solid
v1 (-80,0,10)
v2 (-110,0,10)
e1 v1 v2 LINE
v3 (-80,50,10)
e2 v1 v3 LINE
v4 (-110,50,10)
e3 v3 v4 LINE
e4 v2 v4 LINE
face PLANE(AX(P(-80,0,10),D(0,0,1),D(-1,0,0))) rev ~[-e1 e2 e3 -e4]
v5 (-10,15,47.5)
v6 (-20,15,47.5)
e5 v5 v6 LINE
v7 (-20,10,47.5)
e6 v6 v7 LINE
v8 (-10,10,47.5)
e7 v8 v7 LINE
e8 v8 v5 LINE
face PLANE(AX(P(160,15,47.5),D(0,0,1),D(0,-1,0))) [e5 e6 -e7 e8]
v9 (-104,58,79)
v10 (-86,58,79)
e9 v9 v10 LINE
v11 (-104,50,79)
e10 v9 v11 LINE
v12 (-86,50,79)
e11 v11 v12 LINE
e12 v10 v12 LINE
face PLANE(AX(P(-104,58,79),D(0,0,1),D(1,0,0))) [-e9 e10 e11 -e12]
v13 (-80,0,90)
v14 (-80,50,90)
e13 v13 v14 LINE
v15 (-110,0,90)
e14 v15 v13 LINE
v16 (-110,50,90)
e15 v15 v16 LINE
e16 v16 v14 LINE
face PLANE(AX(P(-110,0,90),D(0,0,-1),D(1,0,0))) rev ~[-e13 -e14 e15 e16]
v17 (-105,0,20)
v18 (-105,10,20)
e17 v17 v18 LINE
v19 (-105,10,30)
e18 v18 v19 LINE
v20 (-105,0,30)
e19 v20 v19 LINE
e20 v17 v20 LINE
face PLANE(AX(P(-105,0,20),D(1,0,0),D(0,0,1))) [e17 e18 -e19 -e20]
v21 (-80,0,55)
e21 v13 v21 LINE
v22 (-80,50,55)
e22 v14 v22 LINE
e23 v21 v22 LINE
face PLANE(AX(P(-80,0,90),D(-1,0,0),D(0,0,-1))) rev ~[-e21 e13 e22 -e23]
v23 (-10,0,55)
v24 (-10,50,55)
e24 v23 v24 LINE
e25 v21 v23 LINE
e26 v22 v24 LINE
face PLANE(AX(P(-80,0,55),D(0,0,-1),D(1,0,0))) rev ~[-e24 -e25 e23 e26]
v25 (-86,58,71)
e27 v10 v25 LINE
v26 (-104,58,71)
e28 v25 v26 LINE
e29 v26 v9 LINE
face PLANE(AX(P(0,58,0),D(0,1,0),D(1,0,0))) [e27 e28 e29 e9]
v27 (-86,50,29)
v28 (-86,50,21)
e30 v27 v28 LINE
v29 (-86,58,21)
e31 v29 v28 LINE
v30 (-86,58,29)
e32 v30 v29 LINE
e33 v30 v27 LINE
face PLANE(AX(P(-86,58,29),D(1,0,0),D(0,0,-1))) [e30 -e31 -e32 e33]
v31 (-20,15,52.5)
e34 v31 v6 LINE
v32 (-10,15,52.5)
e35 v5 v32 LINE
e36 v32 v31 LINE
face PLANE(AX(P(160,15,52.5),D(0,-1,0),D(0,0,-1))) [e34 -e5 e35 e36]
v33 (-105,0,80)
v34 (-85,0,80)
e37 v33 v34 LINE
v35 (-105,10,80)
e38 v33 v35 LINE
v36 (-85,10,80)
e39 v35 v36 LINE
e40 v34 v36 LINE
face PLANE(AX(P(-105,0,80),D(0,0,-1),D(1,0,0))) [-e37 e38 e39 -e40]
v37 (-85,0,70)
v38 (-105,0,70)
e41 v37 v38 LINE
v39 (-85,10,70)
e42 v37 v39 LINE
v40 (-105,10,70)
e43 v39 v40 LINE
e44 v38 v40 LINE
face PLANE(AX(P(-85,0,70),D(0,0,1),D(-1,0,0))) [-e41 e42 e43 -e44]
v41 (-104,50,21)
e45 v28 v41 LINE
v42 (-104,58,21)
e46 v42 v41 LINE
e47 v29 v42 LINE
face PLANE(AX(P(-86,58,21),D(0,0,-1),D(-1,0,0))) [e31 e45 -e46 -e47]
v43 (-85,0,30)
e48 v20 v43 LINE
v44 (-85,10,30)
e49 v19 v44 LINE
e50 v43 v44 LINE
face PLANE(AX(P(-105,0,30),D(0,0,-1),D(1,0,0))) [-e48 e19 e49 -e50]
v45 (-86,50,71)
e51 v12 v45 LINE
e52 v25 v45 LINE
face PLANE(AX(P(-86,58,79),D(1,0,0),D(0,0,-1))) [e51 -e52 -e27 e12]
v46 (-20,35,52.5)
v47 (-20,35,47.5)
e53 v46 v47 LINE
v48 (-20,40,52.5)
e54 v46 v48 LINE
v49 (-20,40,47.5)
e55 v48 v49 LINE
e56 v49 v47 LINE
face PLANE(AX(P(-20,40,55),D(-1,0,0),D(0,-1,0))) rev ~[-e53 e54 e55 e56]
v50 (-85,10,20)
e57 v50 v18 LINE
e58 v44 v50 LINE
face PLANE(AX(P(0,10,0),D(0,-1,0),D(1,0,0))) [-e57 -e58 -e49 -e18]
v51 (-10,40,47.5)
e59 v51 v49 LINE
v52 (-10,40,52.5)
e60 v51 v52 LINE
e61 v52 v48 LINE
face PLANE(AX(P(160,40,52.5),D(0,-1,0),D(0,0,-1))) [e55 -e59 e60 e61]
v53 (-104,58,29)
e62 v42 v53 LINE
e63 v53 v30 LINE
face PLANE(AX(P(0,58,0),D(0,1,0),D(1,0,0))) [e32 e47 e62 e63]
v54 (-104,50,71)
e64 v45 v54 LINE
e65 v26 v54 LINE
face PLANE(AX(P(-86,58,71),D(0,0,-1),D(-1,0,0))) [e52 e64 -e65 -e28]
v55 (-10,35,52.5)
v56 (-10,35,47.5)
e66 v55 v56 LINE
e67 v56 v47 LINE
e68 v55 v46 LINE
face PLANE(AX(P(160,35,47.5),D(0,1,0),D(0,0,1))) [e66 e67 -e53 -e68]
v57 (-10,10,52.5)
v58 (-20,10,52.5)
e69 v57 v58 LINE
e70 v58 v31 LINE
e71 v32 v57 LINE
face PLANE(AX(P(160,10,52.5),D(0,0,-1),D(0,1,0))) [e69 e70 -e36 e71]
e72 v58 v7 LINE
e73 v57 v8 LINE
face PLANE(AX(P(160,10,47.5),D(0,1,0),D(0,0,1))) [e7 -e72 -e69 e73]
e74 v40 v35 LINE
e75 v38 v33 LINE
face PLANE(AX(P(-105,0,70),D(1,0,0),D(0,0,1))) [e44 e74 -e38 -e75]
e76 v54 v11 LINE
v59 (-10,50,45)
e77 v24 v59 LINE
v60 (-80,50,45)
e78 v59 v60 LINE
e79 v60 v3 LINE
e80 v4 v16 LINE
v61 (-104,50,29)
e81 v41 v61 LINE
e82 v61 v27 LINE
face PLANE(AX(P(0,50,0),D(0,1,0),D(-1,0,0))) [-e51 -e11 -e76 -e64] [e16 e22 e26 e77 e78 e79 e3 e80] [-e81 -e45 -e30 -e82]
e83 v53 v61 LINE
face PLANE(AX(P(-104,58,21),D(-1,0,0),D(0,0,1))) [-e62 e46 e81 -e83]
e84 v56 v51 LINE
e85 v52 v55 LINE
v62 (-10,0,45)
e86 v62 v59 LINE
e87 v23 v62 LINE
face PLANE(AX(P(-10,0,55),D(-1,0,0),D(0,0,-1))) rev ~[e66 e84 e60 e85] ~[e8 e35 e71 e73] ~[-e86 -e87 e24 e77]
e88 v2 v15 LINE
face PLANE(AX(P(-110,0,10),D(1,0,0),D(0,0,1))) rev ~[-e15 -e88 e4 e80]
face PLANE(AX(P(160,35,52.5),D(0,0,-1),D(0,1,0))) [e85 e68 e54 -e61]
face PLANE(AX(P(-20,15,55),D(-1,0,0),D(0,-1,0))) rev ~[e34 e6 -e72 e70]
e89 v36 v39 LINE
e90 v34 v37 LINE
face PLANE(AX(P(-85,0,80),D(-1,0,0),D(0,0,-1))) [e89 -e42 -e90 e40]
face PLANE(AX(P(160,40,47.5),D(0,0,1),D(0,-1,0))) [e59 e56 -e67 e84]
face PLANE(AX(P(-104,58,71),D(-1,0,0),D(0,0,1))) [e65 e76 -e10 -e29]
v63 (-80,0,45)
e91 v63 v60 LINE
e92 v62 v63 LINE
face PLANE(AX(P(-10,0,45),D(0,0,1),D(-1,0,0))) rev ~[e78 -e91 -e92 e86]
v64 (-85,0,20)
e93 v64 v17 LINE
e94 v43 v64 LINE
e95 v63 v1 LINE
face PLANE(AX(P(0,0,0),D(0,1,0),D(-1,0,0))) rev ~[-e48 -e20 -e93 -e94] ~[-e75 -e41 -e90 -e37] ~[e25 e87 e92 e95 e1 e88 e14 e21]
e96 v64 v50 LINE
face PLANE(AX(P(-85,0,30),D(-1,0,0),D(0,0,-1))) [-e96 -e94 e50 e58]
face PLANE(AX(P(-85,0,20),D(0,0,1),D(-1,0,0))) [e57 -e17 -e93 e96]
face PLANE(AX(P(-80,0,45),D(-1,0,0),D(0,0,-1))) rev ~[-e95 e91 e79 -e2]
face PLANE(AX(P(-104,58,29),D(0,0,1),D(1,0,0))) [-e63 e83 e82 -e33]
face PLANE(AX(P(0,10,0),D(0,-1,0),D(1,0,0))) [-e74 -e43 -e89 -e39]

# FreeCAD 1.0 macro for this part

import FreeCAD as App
import Part
import Sketcher

V = App.Vector
Q = App.Units.Quantity


def add_polygon(sketch, points):
    """Adds a closed chain of lines whose ends are joined by coincident constraints."""
    first, n = sketch.GeometryCount, len(points)
    for a, b in zip(points, points[1:] + points[:1]):
        sketch.addGeometry(Part.LineSegment(App.Vector(*a, 0), App.Vector(*b, 0)), False)
    for i in range(n):
        sketch.addConstraint(Sketcher.Constraint("Coincident", first + i, 2, first + (i + 1) % n, 1))

doc = App.newDocument("Part")
body = doc.addObject("PartDesign::Body", "Body")
body.AllowCompound = True

# Sketch on XZ plane
sketch1 = body.newObject("Sketcher::SketchObject", "Sketch")
sketch1.AttachmentSupport = (doc.getObject("XZ_Plane"), [""])
sketch1.MapMode = "FlatFace"
add_polygon(sketch1, [(160, -55), (10, -55), (10, -45), (160, -45)])  # lines 0-3
add_polygon(sketch1, [(-10, -45), (-10, -55), (-80, -55), (-80, -90), (-110, -90), (-110, -10), (-80, -10), (-80, -45)])  # lines 4-11
add_polygon(sketch1, [(10, 45), (10, 55), (160, 55), (160, 45)])  # lines 12-15
add_polygon(sketch1, [(-80, 55), (-10, 55), (-10, 45), (-80, 45), (-80, 10), (-110, 10), (-110, 90), (-80, 90)])  # lines 16-23
sketch1.addConstraint(Sketcher.Constraint("Horizontal", 0))
sketch1.addConstraint(Sketcher.Constraint("Vertical", 1))
sketch1.addConstraint(Sketcher.Constraint("Horizontal", 2))
sketch1.addConstraint(Sketcher.Constraint("Vertical", 3))
sketch1.addConstraint(Sketcher.Constraint("Vertical", 4))
sketch1.addConstraint(Sketcher.Constraint("Horizontal", 5))
sketch1.addConstraint(Sketcher.Constraint("Vertical", 6))
sketch1.addConstraint(Sketcher.Constraint("Horizontal", 7))
sketch1.addConstraint(Sketcher.Constraint("Vertical", 8))
sketch1.addConstraint(Sketcher.Constraint("Horizontal", 9))
sketch1.addConstraint(Sketcher.Constraint("Vertical", 10))
sketch1.addConstraint(Sketcher.Constraint("Horizontal", 11))
sketch1.addConstraint(Sketcher.Constraint("Vertical", 12))
sketch1.addConstraint(Sketcher.Constraint("Horizontal", 13))
sketch1.addConstraint(Sketcher.Constraint("Vertical", 14))
sketch1.addConstraint(Sketcher.Constraint("Horizontal", 15))
sketch1.addConstraint(Sketcher.Constraint("Horizontal", 16))
sketch1.addConstraint(Sketcher.Constraint("Vertical", 17))
sketch1.addConstraint(Sketcher.Constraint("Horizontal", 18))
sketch1.addConstraint(Sketcher.Constraint("Vertical", 19))
sketch1.addConstraint(Sketcher.Constraint("Horizontal", 20))
sketch1.addConstraint(Sketcher.Constraint("Vertical", 21))
sketch1.addConstraint(Sketcher.Constraint("Horizontal", 22))
sketch1.addConstraint(Sketcher.Constraint("Vertical", 23))
sketch1.addConstraint(Sketcher.Constraint("Symmetric", 4, 2, 12, 2, -1, 1))
sketch1.addConstraint(Sketcher.Constraint("Symmetric", 0, 2, 16, 2, -1, 1))
sketch1.addConstraint(Sketcher.Constraint("Symmetric", 0, 2, 4, 2, -2))
sketch1.addConstraint(Sketcher.Constraint("Symmetric", 2, 2, 14, 2, -1))
sketch1.addConstraint(Sketcher.Constraint("Symmetric", 10, 2, 18, 2, -1))
sketch1.addConstraint(Sketcher.Constraint("Symmetric", 8, 2, 20, 2, -1))
sketch1.addConstraint(Sketcher.Constraint("Symmetric", 6, 2, 22, 2, -1))
sketch1.addConstraint(Sketcher.Constraint("Horizontal", 2, 2, 10, 2))
sketch1.addConstraint(Sketcher.Constraint("Vertical", 6, 2, 9, 2))
sketch1.addConstraint(Sketcher.Constraint("Equal", 6, 10))
sketch1.addConstraint(Sketcher.Constraint("DistanceX", 0, 2, 0, 1, Q("150 mm")))
sketch1.addConstraint(Sketcher.Constraint("DistanceX", 7, 2, 7, 1, Q("30 mm")))
sketch1.addConstraint(Sketcher.Constraint("DistanceY", 1, 1, 1, 2, Q("10 mm")))
sketch1.addConstraint(Sketcher.Constraint("DistanceY", 6, 2, 6, 1, Q("35 mm")))
sketch1.addConstraint(Sketcher.Constraint("DistanceX", -1, 1, 0, 2, Q("10 mm")))
sketch1.addConstraint(Sketcher.Constraint("DistanceY", 1, 2, -1, 1, Q("45 mm")))
sketch1.addConstraint(Sketcher.Constraint("DistanceX", 5, 2, -1, 1, Q("80 mm")))
pad1 = body.newObject("PartDesign::Pad", "Pad")
pad1.Profile = sketch1
pad1.Length = 50
pad1.Reversed = True

# Sketch on YZ plane
sketch2 = body.newObject("Sketcher::SketchObject", "Sketch001")
sketch2.AttachmentSupport = (doc.getObject("YZ_Plane"), [""])
sketch2.MapMode = "FlatFace"
sketch2.AttachmentOffset = App.Placement(V(0, 0, 160), App.Rotation())
add_polygon(sketch2, [(40, 47.5), (40, 52.5), (35, 52.5), (35, 47.5)])  # lines 0-3
add_polygon(sketch2, [(15, 47.5), (15, 52.5), (10, 52.5), (10, 47.5)])  # lines 4-7
add_polygon(sketch2, [(40, -52.5), (40, -47.5), (35, -47.5), (35, -52.5)])  # lines 8-11
add_polygon(sketch2, [(15, -52.5), (15, -47.5), (10, -47.5), (10, -52.5)])  # lines 12-15
sketch2.addConstraint(Sketcher.Constraint("Vertical", 0))
sketch2.addConstraint(Sketcher.Constraint("Horizontal", 1))
sketch2.addConstraint(Sketcher.Constraint("Vertical", 2))
sketch2.addConstraint(Sketcher.Constraint("Horizontal", 3))
sketch2.addConstraint(Sketcher.Constraint("Vertical", 4))
sketch2.addConstraint(Sketcher.Constraint("Horizontal", 5))
sketch2.addConstraint(Sketcher.Constraint("Vertical", 6))
sketch2.addConstraint(Sketcher.Constraint("Horizontal", 7))
sketch2.addConstraint(Sketcher.Constraint("Vertical", 8))
sketch2.addConstraint(Sketcher.Constraint("Horizontal", 9))
sketch2.addConstraint(Sketcher.Constraint("Vertical", 10))
sketch2.addConstraint(Sketcher.Constraint("Horizontal", 11))
sketch2.addConstraint(Sketcher.Constraint("Vertical", 12))
sketch2.addConstraint(Sketcher.Constraint("Horizontal", 13))
sketch2.addConstraint(Sketcher.Constraint("Vertical", 14))
sketch2.addConstraint(Sketcher.Constraint("Horizontal", 15))
sketch2.addConstraint(Sketcher.Constraint("Symmetric", 3, 2, 8, 2, -1))
sketch2.addConstraint(Sketcher.Constraint("Symmetric", 1, 2, 10, 2, -1))
sketch2.addConstraint(Sketcher.Constraint("Symmetric", 7, 2, 12, 2, -1))
sketch2.addConstraint(Sketcher.Constraint("Symmetric", 5, 2, 14, 2, -1))
sketch2.addConstraint(Sketcher.Constraint("Horizontal", 1, 2, 4, 2))
sketch2.addConstraint(Sketcher.Constraint("Horizontal", 3, 2, 6, 2))
sketch2.addConstraint(Sketcher.Constraint("Equal", 3, 5))
sketch2.addConstraint(Sketcher.Constraint("Equal", 15, 0))
sketch2.addConstraint(Sketcher.Constraint("DistanceX", 1, 2, 1, 1, Q("5 mm")))
sketch2.addConstraint(Sketcher.Constraint("DistanceX", -1, 1, 5, 2, Q("10 mm")))
sketch2.addConstraint(Sketcher.Constraint("DistanceX", 4, 2, 0, 2, Q("25 mm")))
sketch2.addConstraint(Sketcher.Constraint("DistanceY", 8, 2, 0, 2, Q("100 mm")))
pocket1 = body.newObject("PartDesign::Pocket", "Pocket")
pocket1.Profile = sketch2
pocket1.Length = 200

# Sketch on XZ plane
sketch3 = body.newObject("Sketcher::SketchObject", "Sketch002")
sketch3.AttachmentSupport = (doc.getObject("XZ_Plane"), [""])
sketch3.MapMode = "FlatFace"
sketch3.AttachmentOffset = App.Placement(V(0, 0, -50), App.Rotation())
add_polygon(sketch3, [(-85, 20), (-105, 20), (-105, 30), (-85, 30)])  # lines 0-3
add_polygon(sketch3, [(-85, 70), (-105, 70), (-105, 80), (-85, 80)])  # lines 4-7
add_polygon(sketch3, [(-85, -80), (-105, -80), (-105, -70), (-85, -70)])  # lines 8-11
add_polygon(sketch3, [(-85, -30), (-105, -30), (-105, -20), (-85, -20)])  # lines 12-15
sketch3.addConstraint(Sketcher.Constraint("Horizontal", 0))
sketch3.addConstraint(Sketcher.Constraint("Vertical", 1))
sketch3.addConstraint(Sketcher.Constraint("Horizontal", 2))
sketch3.addConstraint(Sketcher.Constraint("Vertical", 3))
sketch3.addConstraint(Sketcher.Constraint("Horizontal", 4))
sketch3.addConstraint(Sketcher.Constraint("Vertical", 5))
sketch3.addConstraint(Sketcher.Constraint("Horizontal", 6))
sketch3.addConstraint(Sketcher.Constraint("Vertical", 7))
sketch3.addConstraint(Sketcher.Constraint("Horizontal", 8))
sketch3.addConstraint(Sketcher.Constraint("Vertical", 9))
sketch3.addConstraint(Sketcher.Constraint("Horizontal", 10))
sketch3.addConstraint(Sketcher.Constraint("Vertical", 11))
sketch3.addConstraint(Sketcher.Constraint("Horizontal", 12))
sketch3.addConstraint(Sketcher.Constraint("Vertical", 13))
sketch3.addConstraint(Sketcher.Constraint("Horizontal", 14))
sketch3.addConstraint(Sketcher.Constraint("Vertical", 15))
sketch3.addConstraint(Sketcher.Constraint("Symmetric", 5, 2, 8, 2, -1))
sketch3.addConstraint(Sketcher.Constraint("Symmetric", 7, 2, 10, 2, -1))
sketch3.addConstraint(Sketcher.Constraint("Symmetric", 1, 2, 12, 2, -1))
sketch3.addConstraint(Sketcher.Constraint("Symmetric", 3, 2, 14, 2, -1))
sketch3.addConstraint(Sketcher.Constraint("Vertical", 1, 2, 4, 2))
sketch3.addConstraint(Sketcher.Constraint("Vertical", 3, 2, 6, 2))
sketch3.addConstraint(Sketcher.Constraint("Equal", 3, 5))
sketch3.addConstraint(Sketcher.Constraint("DistanceX", 0, 2, 0, 1, Q("20 mm")))
sketch3.addConstraint(Sketcher.Constraint("DistanceY", 1, 1, 1, 2, Q("10 mm")))
sketch3.addConstraint(Sketcher.Constraint("DistanceY", -1, 1, 0, 2, Q("20 mm")))
sketch3.addConstraint(Sketcher.Constraint("DistanceX", 2, 2, -1, 1, Q("85 mm")))
sketch3.addConstraint(Sketcher.Constraint("DistanceY", 0, 2, 4, 2, Q("50 mm")))
pad2 = body.newObject("PartDesign::Pad", "Pad001")
pad2.Profile = sketch3
pad2.Length = 8
pad2.Reversed = True

# Sketch on XZ plane
sketch4 = body.newObject("Sketcher::SketchObject", "Sketch003")
sketch4.AttachmentSupport = (doc.getObject("XZ_Plane"), [""])
sketch4.MapMode = "FlatFace"
add_polygon(sketch4, [(-85, -70), (-105, -70), (-105, -80), (-85, -80)])  # lines 0-3
add_polygon(sketch4, [(-85, -20), (-105, -20), (-105, -30), (-85, -30)])  # lines 4-7
add_polygon(sketch4, [(-85, 30), (-105, 30), (-105, 20), (-85, 20)])  # lines 8-11
add_polygon(sketch4, [(-85, 80), (-105, 80), (-105, 70), (-85, 70)])  # lines 12-15
sketch4.addConstraint(Sketcher.Constraint("Horizontal", 0))
sketch4.addConstraint(Sketcher.Constraint("Vertical", 1))
sketch4.addConstraint(Sketcher.Constraint("Horizontal", 2))
sketch4.addConstraint(Sketcher.Constraint("Vertical", 3))
sketch4.addConstraint(Sketcher.Constraint("Horizontal", 4))
sketch4.addConstraint(Sketcher.Constraint("Vertical", 5))
sketch4.addConstraint(Sketcher.Constraint("Horizontal", 6))
sketch4.addConstraint(Sketcher.Constraint("Vertical", 7))
sketch4.addConstraint(Sketcher.Constraint("Horizontal", 8))
sketch4.addConstraint(Sketcher.Constraint("Vertical", 9))
sketch4.addConstraint(Sketcher.Constraint("Horizontal", 10))
sketch4.addConstraint(Sketcher.Constraint("Vertical", 11))
sketch4.addConstraint(Sketcher.Constraint("Horizontal", 12))
sketch4.addConstraint(Sketcher.Constraint("Vertical", 13))
sketch4.addConstraint(Sketcher.Constraint("Horizontal", 14))
sketch4.addConstraint(Sketcher.Constraint("Vertical", 15))
sketch4.addConstraint(Sketcher.Constraint("Symmetric", 5, 2, 8, 2, -1))
sketch4.addConstraint(Sketcher.Constraint("Symmetric", 7, 2, 10, 2, -1))
sketch4.addConstraint(Sketcher.Constraint("Symmetric", 1, 2, 12, 2, -1))
sketch4.addConstraint(Sketcher.Constraint("Symmetric", 3, 2, 14, 2, -1))
sketch4.addConstraint(Sketcher.Constraint("Vertical", 1, 2, 4, 2))
sketch4.addConstraint(Sketcher.Constraint("Vertical", 3, 2, 6, 2))
sketch4.addConstraint(Sketcher.Constraint("Equal", 3, 5))
sketch4.addConstraint(Sketcher.Constraint("DistanceX", 0, 2, 0, 1, Q("20 mm")))
sketch4.addConstraint(Sketcher.Constraint("DistanceY", 1, 2, 1, 1, Q("10 mm")))
sketch4.addConstraint(Sketcher.Constraint("DistanceX", 0, 2, -1, 1, Q("105 mm")))
sketch4.addConstraint(Sketcher.Constraint("DistanceY", 0, 2, -1, 1, Q("70 mm")))
sketch4.addConstraint(Sketcher.Constraint("DistanceY", 4, 2, -1, 1, Q("20 mm")))
pocket2 = body.newObject("PartDesign::Pocket", "Pocket001")
pocket2.Profile = sketch4
pocket2.Length = 10

# Sketch on XY plane
sketch5 = body.newObject("Sketcher::SketchObject", "Sketch004")
sketch5.AttachmentSupport = (doc.getObject("XY_Plane"), [""])
sketch5.MapMode = "FlatFace"
sketch5.AttachmentOffset = App.Placement(V(0, 0, 55), App.Rotation())
add_polygon(sketch5, [(20, 15), (20, 10), (150, 10), (150, 15)])  # lines 0-3
add_polygon(sketch5, [(20, 40), (20, 35), (150, 35), (150, 40)])  # lines 4-7
sketch5.addConstraint(Sketcher.Constraint("Vertical", 0))
sketch5.addConstraint(Sketcher.Constraint("Horizontal", 1))
sketch5.addConstraint(Sketcher.Constraint("Vertical", 2))
sketch5.addConstraint(Sketcher.Constraint("Horizontal", 3))
sketch5.addConstraint(Sketcher.Constraint("Vertical", 4))
sketch5.addConstraint(Sketcher.Constraint("Horizontal", 5))
sketch5.addConstraint(Sketcher.Constraint("Vertical", 6))
sketch5.addConstraint(Sketcher.Constraint("Horizontal", 7))
sketch5.addConstraint(Sketcher.Constraint("Vertical", 3, 2, 4, 2))
sketch5.addConstraint(Sketcher.Constraint("Vertical", 2, 2, 5, 2))
sketch5.addConstraint(Sketcher.Constraint("Equal", 2, 4))
sketch5.addConstraint(Sketcher.Constraint("DistanceY", -1, 1, 0, 2, Q("10 mm")))
sketch5.addConstraint(Sketcher.Constraint("DistanceX", 1, 1, 1, 2, Q("130 mm")))
sketch5.addConstraint(Sketcher.Constraint("DistanceY", 0, 2, 0, 1, Q("5 mm")))
sketch5.addConstraint(Sketcher.Constraint("DistanceX", -1, 1, 0, 2, Q("20 mm")))
sketch5.addConstraint(Sketcher.Constraint("DistanceY", -1, 1, 4, 2, Q("35 mm")))
pad3 = body.newObject("PartDesign::Pad", "Pad002")
pad3.Profile = sketch5
pad3.Length = 10
pad3.Reversed = True

# Sketch on XY plane
sketch6 = body.newObject("Sketcher::SketchObject", "Sketch005")
sketch6.AttachmentSupport = (doc.getObject("XY_Plane"), [""])
sketch6.MapMode = "FlatFace"
sketch6.AttachmentOffset = App.Placement(V(0, 0, -55), App.Rotation())
add_polygon(sketch6, [(20, 35), (20, 40), (150, 40), (150, 35)])  # lines 0-3
add_polygon(sketch6, [(20, 10), (20, 15), (150, 15), (150, 10)])  # lines 4-7
sketch6.addConstraint(Sketcher.Constraint("Vertical", 0))
sketch6.addConstraint(Sketcher.Constraint("Horizontal", 1))
sketch6.addConstraint(Sketcher.Constraint("Vertical", 2))
sketch6.addConstraint(Sketcher.Constraint("Horizontal", 3))
sketch6.addConstraint(Sketcher.Constraint("Vertical", 4))
sketch6.addConstraint(Sketcher.Constraint("Horizontal", 5))
sketch6.addConstraint(Sketcher.Constraint("Vertical", 6))
sketch6.addConstraint(Sketcher.Constraint("Horizontal", 7))
sketch6.addConstraint(Sketcher.Constraint("Vertical", 3, 2, 4, 2))
sketch6.addConstraint(Sketcher.Constraint("Vertical", 2, 2, 5, 2))
sketch6.addConstraint(Sketcher.Constraint("Equal", 2, 4))
sketch6.addConstraint(Sketcher.Constraint("DistanceY", -1, 1, 6, 2, Q("10 mm")))
sketch6.addConstraint(Sketcher.Constraint("DistanceX", 1, 1, 1, 2, Q("130 mm")))
sketch6.addConstraint(Sketcher.Constraint("DistanceY", 0, 1, 0, 2, Q("5 mm")))
sketch6.addConstraint(Sketcher.Constraint("DistanceX", -1, 1, 0, 2, Q("20 mm")))
sketch6.addConstraint(Sketcher.Constraint("DistanceY", -1, 1, 0, 2, Q("40 mm")))
pad4 = body.newObject("PartDesign::Pad", "Pad003")
pad4.Profile = sketch6
pad4.Length = 10

# Sketch on XZ plane
sketch7 = body.newObject("Sketcher::SketchObject", "Sketch006")
sketch7.AttachmentSupport = (doc.getObject("XZ_Plane"), [""])
sketch7.MapMode = "FlatFace"
sketch7.AttachmentOffset = App.Placement(V(0, 0, -58), App.Rotation())
add_polygon(sketch7, [(-105, 70), (-105, 80), (-85, 80), (-85, 70)])  # lines 0-3
add_polygon(sketch7, [(-86, 79), (-104, 79), (-104, 71), (-86, 71)])  # lines 4-7
add_polygon(sketch7, [(-105, 20), (-105, 30), (-85, 30), (-85, 20)])  # lines 8-11
add_polygon(sketch7, [(-104, 21), (-86, 21), (-86, 29), (-104, 29)])  # lines 12-15
add_polygon(sketch7, [(-105, -30), (-105, -20), (-85, -20), (-85, -30)])  # lines 16-19
add_polygon(sketch7, [(-104, -29), (-86, -29), (-86, -21), (-104, -21)])  # lines 20-23
add_polygon(sketch7, [(-105, -80), (-105, -70), (-85, -70), (-85, -80)])  # lines 24-27
add_polygon(sketch7, [(-104, -79), (-86, -79), (-86, -71), (-104, -71)])  # lines 28-31
sketch7.addConstraint(Sketcher.Constraint("Vertical", 0))
sketch7.addConstraint(Sketcher.Constraint("Horizontal", 1))
sketch7.addConstraint(Sketcher.Constraint("Vertical", 2))
sketch7.addConstraint(Sketcher.Constraint("Horizontal", 3))
sketch7.addConstraint(Sketcher.Constraint("Horizontal", 4))
sketch7.addConstraint(Sketcher.Constraint("Vertical", 5))
sketch7.addConstraint(Sketcher.Constraint("Horizontal", 6))
sketch7.addConstraint(Sketcher.Constraint("Vertical", 7))
sketch7.addConstraint(Sketcher.Constraint("Vertical", 8))
sketch7.addConstraint(Sketcher.Constraint("Horizontal", 9))
sketch7.addConstraint(Sketcher.Constraint("Vertical", 10))
sketch7.addConstraint(Sketcher.Constraint("Horizontal", 11))
sketch7.addConstraint(Sketcher.Constraint("Horizontal", 12))
sketch7.addConstraint(Sketcher.Constraint("Vertical", 13))
sketch7.addConstraint(Sketcher.Constraint("Horizontal", 14))
sketch7.addConstraint(Sketcher.Constraint("Vertical", 15))
sketch7.addConstraint(Sketcher.Constraint("Vertical", 16))
sketch7.addConstraint(Sketcher.Constraint("Horizontal", 17))
sketch7.addConstraint(Sketcher.Constraint("Vertical", 18))
sketch7.addConstraint(Sketcher.Constraint("Horizontal", 19))
sketch7.addConstraint(Sketcher.Constraint("Horizontal", 20))
sketch7.addConstraint(Sketcher.Constraint("Vertical", 21))
sketch7.addConstraint(Sketcher.Constraint("Horizontal", 22))
sketch7.addConstraint(Sketcher.Constraint("Vertical", 23))
sketch7.addConstraint(Sketcher.Constraint("Vertical", 24))
sketch7.addConstraint(Sketcher.Constraint("Horizontal", 25))
sketch7.addConstraint(Sketcher.Constraint("Vertical", 26))
sketch7.addConstraint(Sketcher.Constraint("Horizontal", 27))
sketch7.addConstraint(Sketcher.Constraint("Horizontal", 28))
sketch7.addConstraint(Sketcher.Constraint("Vertical", 29))
sketch7.addConstraint(Sketcher.Constraint("Horizontal", 30))
sketch7.addConstraint(Sketcher.Constraint("Vertical", 31))
sketch7.addConstraint(Sketcher.Constraint("Symmetric", 11, 2, 16, 2, -1))
sketch7.addConstraint(Sketcher.Constraint("Symmetric", 9, 2, 18, 2, -1))
sketch7.addConstraint(Sketcher.Constraint("Symmetric", 13, 2, 20, 2, -1))
sketch7.addConstraint(Sketcher.Constraint("Symmetric", 15, 2, 22, 2, -1))
sketch7.addConstraint(Sketcher.Constraint("Symmetric", 3, 2, 24, 2, -1))
sketch7.addConstraint(Sketcher.Constraint("Symmetric", 1, 2, 26, 2, -1))
sketch7.addConstraint(Sketcher.Constraint("Symmetric", 7, 2, 28, 2, -1))
sketch7.addConstraint(Sketcher.Constraint("Symmetric", 5, 2, 30, 2, -1))
sketch7.addConstraint(Sketcher.Constraint("Vertical", 3, 2, 8, 2))
sketch7.addConstraint(Sketcher.Constraint("Vertical", 2, 2, 9, 2))
sketch7.addConstraint(Sketcher.Constraint("Vertical", 7, 2, 12, 2))
sketch7.addConstraint(Sketcher.Constraint("Vertical", 5, 2, 14, 2))
sketch7.addConstraint(Sketcher.Constraint("Equal", 2, 8))
sketch7.addConstraint(Sketcher.Constraint("Equal", 7, 13))
sketch7.addConstraint(Sketcher.Constraint("DistanceX", 0, 2, 4, 2, Q("1 mm")))
sketch7.addConstraint(Sketcher.Constraint("DistanceY", 4, 2, 0, 2, Q("1 mm")))
sketch7.addConstraint(Sketcher.Constraint("DistanceY", 3, 2, 5, 2, Q("1 mm")))
sketch7.addConstraint(Sketcher.Constraint("DistanceX", 6, 2, 2, 2, Q("1 mm")))
sketch7.addConstraint(Sketcher.Constraint("DistanceY", 10, 2, 2, 2, Q("50 mm")))
sketch7.addConstraint(Sketcher.Constraint("DistanceY", 10, 2, 12, 2, Q("1 mm")))
sketch7.addConstraint(Sketcher.Constraint("DistanceY", 18, 2, 10, 2, Q("50 mm")))
sketch7.addConstraint(Sketcher.Constraint("DistanceX", 1, 1, 1, 2, Q("20 mm")))
sketch7.addConstraint(Sketcher.Constraint("DistanceY", 0, 1, 0, 2, Q("10 mm")))
sketch7.addConstraint(Sketcher.Constraint("DistanceX", 0, 2, -1, 1, Q("105 mm")))
pocket3 = body.newObject("PartDesign::Pocket", "Pocket002")
pocket3.Profile = sketch7
pocket3.Length = 8
pocket3.Reversed = True

# Sketch on XY plane
sketch8 = body.newObject("Sketcher::SketchObject", "Sketch007")
sketch8.AttachmentSupport = (doc.getObject("XY_Plane"), [""])
sketch8.MapMode = "FlatFace"
sketch8.AttachmentOffset = App.Placement(V(0, 0, 55), App.Rotation())
add_polygon(sketch8, [(-20, 35), (-20, 40), (-40, 40), (-40, 35)])  # lines 0-3
add_polygon(sketch8, [(-20, 10), (-20, 15), (-40, 15), (-40, 10)])  # lines 4-7
sketch8.addConstraint(Sketcher.Constraint("Vertical", 0))
sketch8.addConstraint(Sketcher.Constraint("Horizontal", 1))
sketch8.addConstraint(Sketcher.Constraint("Vertical", 2))
sketch8.addConstraint(Sketcher.Constraint("Horizontal", 3))
sketch8.addConstraint(Sketcher.Constraint("Vertical", 4))
sketch8.addConstraint(Sketcher.Constraint("Horizontal", 5))
sketch8.addConstraint(Sketcher.Constraint("Vertical", 6))
sketch8.addConstraint(Sketcher.Constraint("Horizontal", 7))
sketch8.addConstraint(Sketcher.Constraint("Vertical", 3, 2, 4, 2))
sketch8.addConstraint(Sketcher.Constraint("Vertical", 2, 2, 5, 2))
sketch8.addConstraint(Sketcher.Constraint("Equal", 2, 4))
sketch8.addConstraint(Sketcher.Constraint("DistanceY", -1, 1, 6, 2, Q("10 mm")))
sketch8.addConstraint(Sketcher.Constraint("DistanceX", 1, 2, 1, 1, Q("20 mm")))
sketch8.addConstraint(Sketcher.Constraint("DistanceY", 0, 1, 0, 2, Q("5 mm")))
sketch8.addConstraint(Sketcher.Constraint("DistanceX", 0, 2, -1, 1, Q("20 mm")))
sketch8.addConstraint(Sketcher.Constraint("DistanceY", -1, 1, 0, 2, Q("40 mm")))
pad5 = body.newObject("PartDesign::Pad", "Pad004")
pad5.Profile = sketch8
pad5.Length = 10
pad5.Reversed = True

# Sketch on XY plane
sketch9 = body.newObject("Sketcher::SketchObject", "Sketch008")
sketch9.AttachmentSupport = (doc.getObject("XY_Plane"), [""])
sketch9.MapMode = "FlatFace"
sketch9.AttachmentOffset = App.Placement(V(0, 0, -55), App.Rotation())
add_polygon(sketch9, [(-20, 40), (-20, 10), (-40, 10), (-40, 40)])  # lines 0-3
sketch9.addConstraint(Sketcher.Constraint("Vertical", 0))
sketch9.addConstraint(Sketcher.Constraint("Horizontal", 1))
sketch9.addConstraint(Sketcher.Constraint("Vertical", 2))
sketch9.addConstraint(Sketcher.Constraint("Horizontal", 3))
sketch9.addConstraint(Sketcher.Constraint("DistanceY", -1, 1, 0, 2, Q("10 mm")))
sketch9.addConstraint(Sketcher.Constraint("DistanceX", 1, 2, 1, 1, Q("20 mm")))
sketch9.addConstraint(Sketcher.Constraint("DistanceY", 0, 2, 0, 1, Q("30 mm")))
sketch9.addConstraint(Sketcher.Constraint("DistanceX", 0, 2, -1, 1, Q("20 mm")))
pad6 = body.newObject("PartDesign::Pad", "Pad005")
pad6.Profile = sketch9
pad6.Length = 10

# Sketch on XZ plane
sketch10 = body.newObject("Sketcher::SketchObject", "Sketch009")
sketch10.AttachmentSupport = (doc.getObject("XZ_Plane"), [""])
sketch10.MapMode = "FlatFace"
sketch10.AttachmentOffset = App.Placement(V(0, 0, -58), App.Rotation())
add_polygon(sketch10, [(180, -100), (-140, -100), (-140, 0), (0, 0), (0, 100), (180, 100)])  # lines 0-5
sketch10.addConstraint(Sketcher.Constraint("Horizontal", 0))
sketch10.addConstraint(Sketcher.Constraint("Vertical", 1))
sketch10.addConstraint(Sketcher.Constraint("Horizontal", 2))
sketch10.addConstraint(Sketcher.Constraint("Vertical", 3))
sketch10.addConstraint(Sketcher.Constraint("Horizontal", 4))
sketch10.addConstraint(Sketcher.Constraint("Vertical", 5))
sketch10.addConstraint(Sketcher.Constraint("Coincident", 2, 2, -1, 1))
sketch10.addConstraint(Sketcher.Constraint("Equal", 1, 3))
sketch10.addConstraint(Sketcher.Constraint("DistanceX", 0, 2, 0, 1, Q("320 mm")))
sketch10.addConstraint(Sketcher.Constraint("DistanceX", 4, 1, 4, 2, Q("180 mm")))
sketch10.addConstraint(Sketcher.Constraint("DistanceY", 1, 1, 1, 2, Q("100 mm")))
pocket4 = body.newObject("PartDesign::Pocket", "Pocket003")
pocket4.Profile = sketch10
pocket4.Type = "ThroughAll"
pocket4.Reversed = True

doc.recompute()
